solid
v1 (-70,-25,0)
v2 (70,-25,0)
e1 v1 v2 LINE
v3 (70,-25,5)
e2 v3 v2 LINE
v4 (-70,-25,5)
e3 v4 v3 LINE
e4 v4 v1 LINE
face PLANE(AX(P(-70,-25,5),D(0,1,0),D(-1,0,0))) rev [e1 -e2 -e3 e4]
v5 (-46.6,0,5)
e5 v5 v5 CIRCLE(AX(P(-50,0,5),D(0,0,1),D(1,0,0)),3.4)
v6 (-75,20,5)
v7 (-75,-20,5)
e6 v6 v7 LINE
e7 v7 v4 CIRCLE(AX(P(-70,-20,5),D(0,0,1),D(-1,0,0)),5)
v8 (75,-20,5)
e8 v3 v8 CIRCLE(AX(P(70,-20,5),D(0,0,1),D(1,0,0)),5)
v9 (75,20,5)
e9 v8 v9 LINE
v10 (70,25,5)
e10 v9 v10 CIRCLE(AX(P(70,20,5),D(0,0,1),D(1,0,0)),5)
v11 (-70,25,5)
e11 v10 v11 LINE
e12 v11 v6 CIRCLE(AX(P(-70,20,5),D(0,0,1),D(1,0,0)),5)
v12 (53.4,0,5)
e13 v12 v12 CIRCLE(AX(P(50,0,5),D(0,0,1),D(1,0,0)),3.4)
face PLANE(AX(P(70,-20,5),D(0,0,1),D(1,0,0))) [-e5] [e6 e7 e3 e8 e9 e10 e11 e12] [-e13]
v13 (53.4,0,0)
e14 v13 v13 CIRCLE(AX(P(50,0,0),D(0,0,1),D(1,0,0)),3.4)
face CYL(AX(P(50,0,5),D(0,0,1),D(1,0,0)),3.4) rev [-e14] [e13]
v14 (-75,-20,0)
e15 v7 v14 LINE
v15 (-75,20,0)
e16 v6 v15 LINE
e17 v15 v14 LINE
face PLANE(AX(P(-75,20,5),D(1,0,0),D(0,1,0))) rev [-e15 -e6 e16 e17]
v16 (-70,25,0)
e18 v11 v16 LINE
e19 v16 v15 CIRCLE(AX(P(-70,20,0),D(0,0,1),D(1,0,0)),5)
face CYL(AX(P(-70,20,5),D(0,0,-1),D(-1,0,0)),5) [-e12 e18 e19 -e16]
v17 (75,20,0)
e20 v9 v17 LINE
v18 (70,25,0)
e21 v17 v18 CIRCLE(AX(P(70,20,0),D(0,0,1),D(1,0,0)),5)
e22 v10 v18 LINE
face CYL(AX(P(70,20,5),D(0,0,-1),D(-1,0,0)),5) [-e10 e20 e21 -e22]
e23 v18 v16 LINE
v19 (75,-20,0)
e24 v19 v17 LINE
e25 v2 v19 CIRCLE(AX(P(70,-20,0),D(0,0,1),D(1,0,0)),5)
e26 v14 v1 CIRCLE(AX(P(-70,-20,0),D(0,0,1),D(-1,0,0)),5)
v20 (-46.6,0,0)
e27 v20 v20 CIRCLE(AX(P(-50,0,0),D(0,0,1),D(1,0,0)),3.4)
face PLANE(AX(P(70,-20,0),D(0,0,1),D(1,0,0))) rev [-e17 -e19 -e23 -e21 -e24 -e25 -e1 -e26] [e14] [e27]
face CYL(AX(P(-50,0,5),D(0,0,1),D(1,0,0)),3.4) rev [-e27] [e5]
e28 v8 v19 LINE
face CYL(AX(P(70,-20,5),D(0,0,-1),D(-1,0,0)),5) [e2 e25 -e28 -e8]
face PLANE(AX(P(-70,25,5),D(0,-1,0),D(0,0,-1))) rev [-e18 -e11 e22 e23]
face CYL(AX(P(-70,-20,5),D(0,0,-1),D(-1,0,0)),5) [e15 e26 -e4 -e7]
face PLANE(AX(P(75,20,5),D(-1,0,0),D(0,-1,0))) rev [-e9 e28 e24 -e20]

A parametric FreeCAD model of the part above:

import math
import FreeCAD as App
import Part
import Sketcher
Q = App.Units.Quantity

doc = App.newDocument("Part")
body = doc.addObject("PartDesign::Body", "Body")

sketch1 = body.newObject("Sketcher::SketchObject", "Sketch")
sketch1.AttachmentSupport = (doc.getObject("XY_Plane"), [""])
sketch1.MapMode = "FlatFace"
sketch1.addGeometry([
    Part.LineSegment(App.Vector(70, 25, 0), App.Vector(-70, 25, 0)),
    Part.ArcOfCircle(Part.Circle(App.Vector(-70, 20, 0), App.Vector(0, 0, 1), 5), math.radians(90), math.radians(180)),
    Part.LineSegment(App.Vector(-75, 20, 0), App.Vector(-75, -20, 0)),
    Part.ArcOfCircle(Part.Circle(App.Vector(-70, -20, 0), App.Vector(0, 0, 1), 5), math.radians(180), math.radians(270)),
    Part.LineSegment(App.Vector(-70, -25, 0), App.Vector(70, -25, 0)),
    Part.ArcOfCircle(Part.Circle(App.Vector(70, -20, 0), App.Vector(0, 0, 1), 5), math.radians(-90), math.radians(0)),
    Part.LineSegment(App.Vector(75, -20, 0), App.Vector(75, 20, 0)),
    Part.ArcOfCircle(Part.Circle(App.Vector(70, 20, 0), App.Vector(0, 0, 1), 5), math.radians(0), math.radians(90)),
], False)
sketch1.addConstraint([
    Sketcher.Constraint("Tangent", 0, 2, 1, 1),
    Sketcher.Constraint("Tangent", 1, 2, 2, 1),
    Sketcher.Constraint("Tangent", 2, 2, 3, 1),
    Sketcher.Constraint("Tangent", 3, 2, 4, 1),
    Sketcher.Constraint("Tangent", 4, 2, 5, 1),
    Sketcher.Constraint("Tangent", 5, 2, 6, 1),
    Sketcher.Constraint("Tangent", 6, 2, 7, 1),
    Sketcher.Constraint("Tangent", 7, 2, 0, 1),
    Sketcher.Constraint("Horizontal", 0),
    Sketcher.Constraint("Vertical", 2),
    Sketcher.Constraint("Horizontal", 4),
    Sketcher.Constraint("Vertical", 6),
    Sketcher.Constraint("Equal", 1, 3),
    Sketcher.Constraint("Equal", 3, 5),
    Sketcher.Constraint("Equal", 5, 7),
    Sketcher.Constraint("Symmetric", 1, 3, 5, 3, -1, 1),
    Sketcher.Constraint("Radius", 1, Q("5 mm")),
    Sketcher.Constraint("DistanceX", 0, 2, 0, 1, Q("140 mm")),
    Sketcher.Constraint("DistanceY", 2, 2, 2, 1, Q("40 mm")),
])
pad1 = body.newObject("PartDesign::Pad", "Pad")
pad1.Profile = sketch1
pad1.Length = 5

sketch2 = body.newObject("Sketcher::SketchObject", "Sketch001")
sketch2.AttachmentSupport = (doc.getObject("XY_Plane"), [""])
sketch2.MapMode = "FlatFace"
sketch2.AttachmentOffset = App.Placement(App.Vector(0, 0, 5), App.Rotation())
sketch2.addGeometry([
    Part.Circle(App.Vector(-50, 0, 0), App.Vector(0, 0, 1), 3.4),
    Part.Circle(App.Vector(50, 0, 0), App.Vector(0, 0, 1), 3.4),
], False)
sketch2.addConstraint([
    Sketcher.Constraint("Equal", 0, 1),
    Sketcher.Constraint("Symmetric", 0, 3, 1, 3, -1, 1),
    Sketcher.Constraint("PointOnObject", 0, 3, -1),
    Sketcher.Constraint("Diameter", 0, Q("6.8 mm")),
    Sketcher.Constraint("DistanceX", 0, 3, -1, 1, Q("50 mm")),
])
doc.recompute()
hole = body.newObject("PartDesign::Hole", "Hole")
hole.Profile = sketch2
hole.ThreadType = "None"
hole.Diameter = 6.8
hole.DepthType = "ThroughAll"

doc.recompute()
